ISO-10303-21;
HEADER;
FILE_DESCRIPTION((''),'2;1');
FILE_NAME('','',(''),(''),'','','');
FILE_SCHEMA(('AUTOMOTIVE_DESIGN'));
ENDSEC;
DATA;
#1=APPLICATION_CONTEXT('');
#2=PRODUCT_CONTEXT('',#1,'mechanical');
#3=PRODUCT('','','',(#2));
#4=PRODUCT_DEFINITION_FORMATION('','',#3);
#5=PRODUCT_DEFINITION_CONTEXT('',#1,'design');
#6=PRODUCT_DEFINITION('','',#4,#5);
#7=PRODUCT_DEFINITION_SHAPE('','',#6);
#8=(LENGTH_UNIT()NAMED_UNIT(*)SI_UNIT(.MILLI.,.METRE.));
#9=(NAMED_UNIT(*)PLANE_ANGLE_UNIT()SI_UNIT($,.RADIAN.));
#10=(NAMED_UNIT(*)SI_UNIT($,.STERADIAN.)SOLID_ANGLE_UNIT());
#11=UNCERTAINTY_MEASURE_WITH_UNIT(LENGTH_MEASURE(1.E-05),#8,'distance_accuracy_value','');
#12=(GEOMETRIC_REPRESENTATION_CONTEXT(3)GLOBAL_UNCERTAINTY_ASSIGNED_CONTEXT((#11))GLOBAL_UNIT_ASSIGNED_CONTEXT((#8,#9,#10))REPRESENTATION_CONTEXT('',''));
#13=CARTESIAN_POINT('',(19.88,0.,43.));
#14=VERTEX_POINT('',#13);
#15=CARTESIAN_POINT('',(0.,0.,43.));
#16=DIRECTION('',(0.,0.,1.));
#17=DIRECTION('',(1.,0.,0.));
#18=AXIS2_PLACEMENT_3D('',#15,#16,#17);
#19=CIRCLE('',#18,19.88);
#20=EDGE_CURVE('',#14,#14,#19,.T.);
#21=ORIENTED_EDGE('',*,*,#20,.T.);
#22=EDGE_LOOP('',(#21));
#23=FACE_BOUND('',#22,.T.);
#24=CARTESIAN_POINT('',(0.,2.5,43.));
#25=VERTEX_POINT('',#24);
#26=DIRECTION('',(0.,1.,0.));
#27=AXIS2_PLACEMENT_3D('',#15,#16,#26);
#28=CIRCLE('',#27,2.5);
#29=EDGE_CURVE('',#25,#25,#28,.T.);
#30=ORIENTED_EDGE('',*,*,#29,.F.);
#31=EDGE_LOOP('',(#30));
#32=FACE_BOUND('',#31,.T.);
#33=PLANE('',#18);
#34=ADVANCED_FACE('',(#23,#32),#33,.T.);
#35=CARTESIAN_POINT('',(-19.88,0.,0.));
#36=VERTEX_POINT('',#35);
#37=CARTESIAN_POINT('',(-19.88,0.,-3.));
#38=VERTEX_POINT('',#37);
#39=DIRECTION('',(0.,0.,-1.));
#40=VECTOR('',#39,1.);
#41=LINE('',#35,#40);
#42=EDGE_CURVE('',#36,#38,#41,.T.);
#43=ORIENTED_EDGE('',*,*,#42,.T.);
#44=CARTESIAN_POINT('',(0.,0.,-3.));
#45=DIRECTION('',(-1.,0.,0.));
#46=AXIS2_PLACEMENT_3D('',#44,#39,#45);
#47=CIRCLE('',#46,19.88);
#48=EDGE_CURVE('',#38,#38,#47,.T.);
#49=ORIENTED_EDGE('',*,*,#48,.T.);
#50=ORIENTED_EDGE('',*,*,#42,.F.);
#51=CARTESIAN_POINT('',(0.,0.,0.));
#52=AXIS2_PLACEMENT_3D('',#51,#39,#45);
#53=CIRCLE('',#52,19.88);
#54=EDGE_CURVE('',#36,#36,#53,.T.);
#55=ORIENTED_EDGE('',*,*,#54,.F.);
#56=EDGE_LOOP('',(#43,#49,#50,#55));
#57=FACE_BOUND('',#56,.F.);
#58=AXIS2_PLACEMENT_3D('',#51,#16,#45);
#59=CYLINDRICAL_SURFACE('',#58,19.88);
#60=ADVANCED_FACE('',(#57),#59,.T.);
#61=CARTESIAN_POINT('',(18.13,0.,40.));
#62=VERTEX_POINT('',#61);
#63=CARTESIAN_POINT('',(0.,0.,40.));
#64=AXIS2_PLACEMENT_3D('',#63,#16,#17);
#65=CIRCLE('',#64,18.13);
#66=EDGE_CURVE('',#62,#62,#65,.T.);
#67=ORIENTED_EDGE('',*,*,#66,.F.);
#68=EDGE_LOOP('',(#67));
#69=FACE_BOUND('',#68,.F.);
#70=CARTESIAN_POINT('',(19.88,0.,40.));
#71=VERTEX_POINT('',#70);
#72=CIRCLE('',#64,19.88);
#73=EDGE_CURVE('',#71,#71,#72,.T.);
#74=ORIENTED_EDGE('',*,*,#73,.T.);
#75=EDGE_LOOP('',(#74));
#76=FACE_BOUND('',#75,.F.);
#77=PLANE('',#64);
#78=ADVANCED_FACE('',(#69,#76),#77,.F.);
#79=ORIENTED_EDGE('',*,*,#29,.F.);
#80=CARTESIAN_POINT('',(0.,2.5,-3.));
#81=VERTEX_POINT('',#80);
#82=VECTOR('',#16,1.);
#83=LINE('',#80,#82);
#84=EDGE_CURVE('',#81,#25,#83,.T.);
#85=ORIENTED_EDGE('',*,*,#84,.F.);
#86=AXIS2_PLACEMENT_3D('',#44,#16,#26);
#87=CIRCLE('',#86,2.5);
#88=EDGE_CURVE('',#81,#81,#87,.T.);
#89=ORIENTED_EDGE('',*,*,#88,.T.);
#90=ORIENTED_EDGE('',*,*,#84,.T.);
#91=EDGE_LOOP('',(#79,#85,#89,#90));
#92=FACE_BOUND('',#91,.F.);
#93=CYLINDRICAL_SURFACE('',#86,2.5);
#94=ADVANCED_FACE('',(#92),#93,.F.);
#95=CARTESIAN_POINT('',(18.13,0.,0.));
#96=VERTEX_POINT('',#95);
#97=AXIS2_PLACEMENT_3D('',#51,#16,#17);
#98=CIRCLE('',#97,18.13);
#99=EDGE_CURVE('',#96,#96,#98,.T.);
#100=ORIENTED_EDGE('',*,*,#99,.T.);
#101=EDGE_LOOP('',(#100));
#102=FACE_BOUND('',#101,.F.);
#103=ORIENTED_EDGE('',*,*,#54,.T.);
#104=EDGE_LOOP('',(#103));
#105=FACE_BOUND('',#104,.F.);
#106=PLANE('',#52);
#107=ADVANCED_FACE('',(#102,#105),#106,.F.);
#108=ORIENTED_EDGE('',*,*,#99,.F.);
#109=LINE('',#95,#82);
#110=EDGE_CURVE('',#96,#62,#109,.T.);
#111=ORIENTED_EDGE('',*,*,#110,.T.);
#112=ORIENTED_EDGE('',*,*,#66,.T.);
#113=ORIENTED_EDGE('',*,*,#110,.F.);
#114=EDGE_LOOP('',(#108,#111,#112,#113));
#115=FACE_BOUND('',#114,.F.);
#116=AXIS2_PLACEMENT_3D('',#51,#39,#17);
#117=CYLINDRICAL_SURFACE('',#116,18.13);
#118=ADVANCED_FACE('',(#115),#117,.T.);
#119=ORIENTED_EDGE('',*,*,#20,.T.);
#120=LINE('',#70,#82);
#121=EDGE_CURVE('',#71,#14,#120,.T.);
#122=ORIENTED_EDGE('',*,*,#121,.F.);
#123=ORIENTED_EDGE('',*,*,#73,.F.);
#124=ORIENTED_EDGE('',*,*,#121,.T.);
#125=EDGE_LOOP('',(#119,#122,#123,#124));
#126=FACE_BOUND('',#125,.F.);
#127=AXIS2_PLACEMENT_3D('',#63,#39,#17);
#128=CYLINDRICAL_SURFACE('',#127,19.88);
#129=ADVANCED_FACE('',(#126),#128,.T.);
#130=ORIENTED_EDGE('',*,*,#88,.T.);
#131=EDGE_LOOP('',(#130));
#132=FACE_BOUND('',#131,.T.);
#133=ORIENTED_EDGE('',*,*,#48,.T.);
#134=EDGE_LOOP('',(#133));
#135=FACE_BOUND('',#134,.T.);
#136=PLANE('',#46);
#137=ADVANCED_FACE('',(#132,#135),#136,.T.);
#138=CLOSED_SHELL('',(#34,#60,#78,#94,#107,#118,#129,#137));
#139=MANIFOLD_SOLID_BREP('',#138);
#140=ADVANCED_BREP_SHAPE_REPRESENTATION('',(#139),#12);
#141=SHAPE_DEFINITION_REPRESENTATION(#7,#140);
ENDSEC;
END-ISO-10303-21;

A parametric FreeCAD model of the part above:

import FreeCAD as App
import Part
import Sketcher
Q = App.Units.Quantity

doc = App.newDocument("Part")
params = doc.addObject("Spreadsheet::Sheet", "Params")
for row, (alias, value) in enumerate([
    ("sketch1_diameter", "36.26 mm"),
    ("pad1_length", "40 mm"),
    ("sketch2_diameter", "39.76 mm"),
    ("pad2_length", "3 mm"),
    ("sketch3_diameter", "39.76 mm"),
    ("pad3_length", "3 mm"),
    ("sketch4_diameter", "5 mm"),
    ("hole_diameter", "5 mm"),
    ("hole_depth", "46 mm"),
], start=1):
    params.set(f"A{row}", alias)
    params.set(f"B{row}", "=" + value)
    params.setAlias(f"B{row}", alias)

body = doc.addObject("PartDesign::Body", "Body")

sketch1 = body.newObject("Sketcher::SketchObject", "Sketch")
sketch1.AttachmentSupport = (doc.getObject("XY_Plane"), [""])
sketch1.MapMode = "FlatFace"
sketch1.addGeometry(Part.Circle(App.Vector(0, 0, 0), App.Vector(0, 0, 1), 18), False)
sketch1.addConstraint([
    Sketcher.Constraint("Coincident", 0, 3, -1, 1),
    Sketcher.Constraint("Diameter", 0, Q("36.26 mm")),
])
sketch1.setExpression("Constraints[1]", "Params.sketch1_diameter")
pad1 = body.newObject("PartDesign::Pad", "Pad")
pad1.Profile = sketch1
pad1.setExpression("Length", "Params.pad1_length")

sketch2 = body.newObject("Sketcher::SketchObject", "Sketch001")
sketch2.AttachmentSupport = (doc.getObject("XY_Plane"), [""])
sketch2.MapMode = "FlatFace"
sketch2.AttachmentOffset = App.Placement(App.Vector(0, 0, 40), App.Rotation())
sketch2.addGeometry(Part.Circle(App.Vector(0, 0, 0), App.Vector(0, 0, 1), 20), False)
sketch2.addConstraint([
    Sketcher.Constraint("Coincident", 0, 3, -1, 1),
    Sketcher.Constraint("Diameter", 0, Q("39.76 mm")),
])
sketch2.setExpression("Constraints[1]", "Params.sketch2_diameter")
pad2 = body.newObject("PartDesign::Pad", "Pad001")
pad2.Profile = sketch2
pad2.setExpression("Length", "Params.pad2_length")

sketch3 = body.newObject("Sketcher::SketchObject", "Sketch002")
sketch3.AttachmentSupport = (doc.getObject("XY_Plane"), [""])
sketch3.MapMode = "FlatFace"
sketch3.addGeometry(Part.Circle(App.Vector(0, 0, 0), App.Vector(0, 0, 1), 20), False)
sketch3.addConstraint([
    Sketcher.Constraint("Coincident", 0, 3, -1, 1),
    Sketcher.Constraint("Diameter", 0, Q("39.76 mm")),
])
sketch3.setExpression("Constraints[1]", "Params.sketch3_diameter")
pad3 = body.newObject("PartDesign::Pad", "Pad002")
pad3.Profile = sketch3
pad3.setExpression("Length", "Params.pad3_length")
pad3.Reversed = True

sketch4 = body.newObject("Sketcher::SketchObject", "Sketch003")
sketch4.AttachmentSupport = (doc.getObject("XY_Plane"), [""])
sketch4.MapMode = "FlatFace"
sketch4.AttachmentOffset = App.Placement(App.Vector(0, 0, -3), App.Rotation())
sketch4.addGeometry(Part.Circle(App.Vector(0, 0, 0), App.Vector(0, 0, 1), 2.5), False)
sketch4.addConstraint([
    Sketcher.Constraint("Coincident", 0, 3, -1, 1),
    Sketcher.Constraint("Diameter", 0, Q("5 mm")),
])
sketch4.setExpression("Constraints[1]", "Params.sketch4_diameter")
doc.recompute()
hole = body.newObject("PartDesign::Hole", "Hole")
hole.Profile = sketch4
hole.ThreadType = "None"
hole.setExpression("Diameter", "Params.hole_diameter")
hole.DepthType = "Dimension"
hole.setExpression("Depth", "Params.hole_depth")
hole.DrillPoint = "Flat"
hole.Reversed = True

doc.recompute()
